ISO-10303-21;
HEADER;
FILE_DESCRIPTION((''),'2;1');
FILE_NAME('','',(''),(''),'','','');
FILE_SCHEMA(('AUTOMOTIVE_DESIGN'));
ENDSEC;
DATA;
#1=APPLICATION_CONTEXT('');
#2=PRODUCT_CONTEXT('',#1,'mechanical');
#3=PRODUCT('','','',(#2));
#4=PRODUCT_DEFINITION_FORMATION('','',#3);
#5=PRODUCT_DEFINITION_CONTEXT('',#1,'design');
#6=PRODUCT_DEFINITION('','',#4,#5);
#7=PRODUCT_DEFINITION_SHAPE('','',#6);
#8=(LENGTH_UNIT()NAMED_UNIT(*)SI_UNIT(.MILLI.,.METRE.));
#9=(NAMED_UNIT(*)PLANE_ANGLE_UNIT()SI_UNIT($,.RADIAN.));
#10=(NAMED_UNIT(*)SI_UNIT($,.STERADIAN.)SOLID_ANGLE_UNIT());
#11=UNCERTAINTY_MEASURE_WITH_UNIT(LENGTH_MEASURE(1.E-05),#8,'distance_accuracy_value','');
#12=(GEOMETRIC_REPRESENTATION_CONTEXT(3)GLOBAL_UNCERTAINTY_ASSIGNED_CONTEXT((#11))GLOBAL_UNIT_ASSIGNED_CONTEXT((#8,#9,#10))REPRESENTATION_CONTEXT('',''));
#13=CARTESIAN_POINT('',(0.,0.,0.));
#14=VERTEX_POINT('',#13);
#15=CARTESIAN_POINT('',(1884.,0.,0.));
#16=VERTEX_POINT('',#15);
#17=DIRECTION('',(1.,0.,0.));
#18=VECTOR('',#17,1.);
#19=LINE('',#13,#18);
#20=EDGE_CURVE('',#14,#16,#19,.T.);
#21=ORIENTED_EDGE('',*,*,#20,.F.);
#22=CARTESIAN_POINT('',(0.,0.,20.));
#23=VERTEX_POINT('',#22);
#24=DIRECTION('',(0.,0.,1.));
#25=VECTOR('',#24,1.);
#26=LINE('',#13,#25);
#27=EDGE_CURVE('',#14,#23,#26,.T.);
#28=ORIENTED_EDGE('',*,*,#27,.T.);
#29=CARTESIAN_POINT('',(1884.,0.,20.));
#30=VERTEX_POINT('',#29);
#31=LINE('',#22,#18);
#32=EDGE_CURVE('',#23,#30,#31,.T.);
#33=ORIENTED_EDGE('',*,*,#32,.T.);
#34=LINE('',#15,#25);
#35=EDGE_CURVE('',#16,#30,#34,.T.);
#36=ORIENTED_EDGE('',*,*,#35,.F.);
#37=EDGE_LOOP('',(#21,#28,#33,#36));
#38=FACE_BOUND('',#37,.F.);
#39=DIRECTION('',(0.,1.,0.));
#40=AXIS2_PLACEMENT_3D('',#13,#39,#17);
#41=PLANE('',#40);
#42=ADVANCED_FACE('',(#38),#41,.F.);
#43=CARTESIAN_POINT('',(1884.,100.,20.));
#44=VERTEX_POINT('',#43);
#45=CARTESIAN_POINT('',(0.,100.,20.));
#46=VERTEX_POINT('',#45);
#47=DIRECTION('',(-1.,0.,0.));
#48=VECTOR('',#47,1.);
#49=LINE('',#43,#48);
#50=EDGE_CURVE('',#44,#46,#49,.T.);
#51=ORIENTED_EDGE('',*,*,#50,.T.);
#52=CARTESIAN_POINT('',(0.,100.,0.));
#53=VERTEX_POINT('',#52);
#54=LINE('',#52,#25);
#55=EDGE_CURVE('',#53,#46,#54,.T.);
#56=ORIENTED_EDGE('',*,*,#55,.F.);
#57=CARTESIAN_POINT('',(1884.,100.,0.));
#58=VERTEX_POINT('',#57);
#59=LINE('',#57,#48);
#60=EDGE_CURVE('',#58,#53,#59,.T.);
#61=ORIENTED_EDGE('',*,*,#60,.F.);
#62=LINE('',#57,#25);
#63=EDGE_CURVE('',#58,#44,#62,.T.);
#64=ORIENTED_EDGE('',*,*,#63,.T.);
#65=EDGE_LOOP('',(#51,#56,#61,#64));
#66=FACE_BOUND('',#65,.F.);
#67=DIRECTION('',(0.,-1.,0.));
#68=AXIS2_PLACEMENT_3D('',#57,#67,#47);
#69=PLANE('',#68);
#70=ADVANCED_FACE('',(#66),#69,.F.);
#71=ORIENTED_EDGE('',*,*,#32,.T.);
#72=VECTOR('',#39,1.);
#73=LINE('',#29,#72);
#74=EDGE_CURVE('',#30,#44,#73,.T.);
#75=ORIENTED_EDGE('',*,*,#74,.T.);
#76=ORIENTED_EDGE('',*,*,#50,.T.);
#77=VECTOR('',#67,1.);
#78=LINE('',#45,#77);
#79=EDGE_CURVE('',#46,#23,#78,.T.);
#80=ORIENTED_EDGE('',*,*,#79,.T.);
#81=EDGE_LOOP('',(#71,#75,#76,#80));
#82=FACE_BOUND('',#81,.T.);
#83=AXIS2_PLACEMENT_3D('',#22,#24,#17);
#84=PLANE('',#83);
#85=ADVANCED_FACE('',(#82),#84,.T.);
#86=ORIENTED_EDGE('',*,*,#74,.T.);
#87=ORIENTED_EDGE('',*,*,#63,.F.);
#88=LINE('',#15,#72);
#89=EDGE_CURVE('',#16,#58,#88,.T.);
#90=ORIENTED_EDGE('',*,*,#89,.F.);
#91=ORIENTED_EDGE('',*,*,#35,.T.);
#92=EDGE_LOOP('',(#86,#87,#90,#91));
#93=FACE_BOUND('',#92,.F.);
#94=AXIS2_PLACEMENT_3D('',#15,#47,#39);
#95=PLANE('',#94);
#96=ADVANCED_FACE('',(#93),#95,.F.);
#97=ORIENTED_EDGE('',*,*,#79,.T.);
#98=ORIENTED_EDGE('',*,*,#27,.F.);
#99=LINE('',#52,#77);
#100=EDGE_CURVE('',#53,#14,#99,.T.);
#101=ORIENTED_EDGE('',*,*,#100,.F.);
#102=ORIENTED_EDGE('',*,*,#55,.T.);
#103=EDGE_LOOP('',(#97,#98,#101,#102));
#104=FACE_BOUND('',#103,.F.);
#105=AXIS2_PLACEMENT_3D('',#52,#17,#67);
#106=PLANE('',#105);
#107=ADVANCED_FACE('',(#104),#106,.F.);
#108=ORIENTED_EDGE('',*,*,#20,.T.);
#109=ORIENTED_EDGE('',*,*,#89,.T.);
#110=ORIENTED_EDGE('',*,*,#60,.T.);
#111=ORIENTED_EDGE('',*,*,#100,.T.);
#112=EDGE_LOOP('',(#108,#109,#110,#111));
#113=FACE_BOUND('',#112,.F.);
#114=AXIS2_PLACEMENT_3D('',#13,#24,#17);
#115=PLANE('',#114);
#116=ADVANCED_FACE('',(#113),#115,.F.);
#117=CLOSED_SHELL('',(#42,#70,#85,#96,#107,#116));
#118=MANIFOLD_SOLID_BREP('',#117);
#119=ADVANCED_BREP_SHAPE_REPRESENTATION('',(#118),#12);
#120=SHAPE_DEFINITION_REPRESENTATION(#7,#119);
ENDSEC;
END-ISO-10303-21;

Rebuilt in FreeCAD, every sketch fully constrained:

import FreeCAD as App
import Part
import Sketcher
from FreeCAD import Vector
Q = App.Units.Quantity


def add_polygon(sketch, points):
    """Adds a closed chain of lines whose ends are joined by coincident constraints."""
    first, n = sketch.GeometryCount, len(points)
    for a, b in zip(points, points[1:] + points[:1]):
        sketch.addGeometry(Part.LineSegment(App.Vector(*a, 0), App.Vector(*b, 0)), False)
    for i in range(n):
        sketch.addConstraint(Sketcher.Constraint("Coincident", first + i, 2, first + (i + 1) % n, 1))

doc = App.newDocument("Part")
body = doc.addObject("PartDesign::Body", "Body")

# Sketch on XY plane
sketch1 = body.newObject("Sketcher::SketchObject", "Sketch")
sketch1.AttachmentSupport = (doc.getObject("XY_Plane"), [""])
sketch1.MapMode = "FlatFace"
add_polygon(sketch1, [(0, 100), (0, 0), (1884, 0), (1884, 100)])  # lines 0-3
sketch1.addConstraint([
    Sketcher.Constraint("Vertical", 0),
    Sketcher.Constraint("Horizontal", 1),
    Sketcher.Constraint("Vertical", 2),
    Sketcher.Constraint("Horizontal", 3),
    Sketcher.Constraint("Coincident", 0, 2, -1, 1),
    Sketcher.Constraint("DistanceX", 1, 1, 1, 2, Q("1884 mm")),
    Sketcher.Constraint("DistanceY", 0, 2, 0, 1, Q("100 mm")),
])
pad1 = body.newObject("PartDesign::Pad", "Pad")
pad1.Profile = sketch1
pad1.Length = 20

doc.recompute()
